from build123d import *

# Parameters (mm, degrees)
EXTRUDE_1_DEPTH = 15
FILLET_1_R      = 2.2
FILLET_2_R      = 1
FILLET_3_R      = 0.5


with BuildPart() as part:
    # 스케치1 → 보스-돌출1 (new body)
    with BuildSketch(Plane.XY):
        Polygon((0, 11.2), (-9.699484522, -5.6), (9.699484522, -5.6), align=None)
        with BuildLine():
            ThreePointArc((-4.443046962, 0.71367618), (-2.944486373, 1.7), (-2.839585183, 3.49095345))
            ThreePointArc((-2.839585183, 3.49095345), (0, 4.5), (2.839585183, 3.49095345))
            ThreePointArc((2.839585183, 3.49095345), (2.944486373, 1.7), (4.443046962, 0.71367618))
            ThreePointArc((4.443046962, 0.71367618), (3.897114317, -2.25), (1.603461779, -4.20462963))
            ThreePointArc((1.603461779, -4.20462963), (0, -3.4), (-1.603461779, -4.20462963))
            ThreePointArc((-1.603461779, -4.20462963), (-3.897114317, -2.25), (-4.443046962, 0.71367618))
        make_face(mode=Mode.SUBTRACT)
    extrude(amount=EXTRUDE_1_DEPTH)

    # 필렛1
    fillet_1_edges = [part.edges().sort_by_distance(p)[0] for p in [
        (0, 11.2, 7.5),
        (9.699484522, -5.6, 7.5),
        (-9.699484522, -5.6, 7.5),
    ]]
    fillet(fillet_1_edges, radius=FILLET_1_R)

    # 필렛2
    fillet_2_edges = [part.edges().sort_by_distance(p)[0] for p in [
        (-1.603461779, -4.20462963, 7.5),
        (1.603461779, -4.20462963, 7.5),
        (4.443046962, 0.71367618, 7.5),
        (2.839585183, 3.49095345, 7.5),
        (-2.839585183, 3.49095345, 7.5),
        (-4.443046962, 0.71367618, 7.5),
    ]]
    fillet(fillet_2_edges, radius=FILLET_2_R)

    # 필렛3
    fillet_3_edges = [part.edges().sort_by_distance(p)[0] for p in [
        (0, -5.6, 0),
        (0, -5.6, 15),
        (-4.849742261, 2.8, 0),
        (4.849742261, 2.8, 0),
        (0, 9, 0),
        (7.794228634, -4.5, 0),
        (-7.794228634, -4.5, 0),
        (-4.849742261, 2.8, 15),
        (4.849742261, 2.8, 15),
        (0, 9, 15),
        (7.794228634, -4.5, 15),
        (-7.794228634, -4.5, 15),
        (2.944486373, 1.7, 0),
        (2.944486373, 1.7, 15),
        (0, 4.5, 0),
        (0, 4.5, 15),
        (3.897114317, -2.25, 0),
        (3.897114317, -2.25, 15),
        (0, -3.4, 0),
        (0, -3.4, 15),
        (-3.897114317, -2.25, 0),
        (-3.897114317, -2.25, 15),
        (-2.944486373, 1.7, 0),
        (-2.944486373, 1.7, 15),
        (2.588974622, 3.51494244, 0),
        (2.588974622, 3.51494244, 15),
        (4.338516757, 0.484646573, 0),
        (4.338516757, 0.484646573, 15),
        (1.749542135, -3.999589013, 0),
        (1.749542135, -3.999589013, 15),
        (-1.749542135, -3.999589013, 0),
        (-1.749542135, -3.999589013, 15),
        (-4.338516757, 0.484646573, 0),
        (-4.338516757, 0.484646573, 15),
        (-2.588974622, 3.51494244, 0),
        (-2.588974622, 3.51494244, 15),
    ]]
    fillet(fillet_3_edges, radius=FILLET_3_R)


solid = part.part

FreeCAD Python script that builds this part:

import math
import FreeCAD as App
import Part
import Sketcher

V = App.Vector
Q = App.Units.Quantity


def edges_at(feature, points):
    """Names of the edges that pass closest to the given points."""
    edges = feature.Shape.Edges
    near = lambda p: min(range(len(edges)), key=lambda i: edges[i].distToShape(Part.Vertex(*p))[0])
    return sorted({f"Edge{near(p) + 1}" for p in points})


def add_polygon(sketch, points):
    """Adds a closed chain of lines whose ends are joined by coincident constraints."""
    first, n = sketch.GeometryCount, len(points)
    for a, b in zip(points, points[1:] + points[:1]):
        sketch.addGeometry(Part.LineSegment(App.Vector(*a, 0), App.Vector(*b, 0)), False)
    for i in range(n):
        sketch.addConstraint(Sketcher.Constraint("Coincident", first + i, 2, first + (i + 1) % n, 1))

doc = App.newDocument("Part")
body = doc.addObject("PartDesign::Body", "Body")

# Sketch on XY plane
sketch1 = doc.addObject("Sketcher::SketchObject", "Sketch")
body.addObject(sketch1)
sketch1.AttachmentSupport = (doc.XY_Plane, [""])
sketch1.MapMode = "FlatFace"
add_polygon(sketch1, [(0, 11.2), (-9.699485, -5.6), (9.699485, -5.6)])  # lines 0-2
sketch1.addGeometry(Part.ArcOfCircle(Part.Circle(V(0, 0, 0), V(0, 0, 1), 4.5), math.radians(170.874663), math.radians(249.125337)), False)  # 3
sketch1.addGeometry(Part.ArcOfCircle(Part.Circle(V(-4.676537, 2.7, 0), V(0, 0, 1), 2), math.radians(-83.295709), math.radians(23.295709)), False)  # 4
sketch1.addGeometry(Part.ArcOfCircle(Part.Circle(V(0, 0, 0), V(0, 0, 1), 4.5), math.radians(50.874663), math.radians(129.125337)), False)  # 5
sketch1.addGeometry(Part.ArcOfCircle(Part.Circle(V(4.676537, 2.7, 0), V(0, 0, 1), 2), math.radians(156.704291), math.radians(263.295709)), False)  # 6
sketch1.addGeometry(Part.ArcOfCircle(Part.Circle(V(0, 0, 0), V(0, 0, 1), 4.5), math.radians(-69.125337), math.radians(9.125337)), False)  # 7
sketch1.addGeometry(Part.ArcOfCircle(Part.Circle(V(0, -5.4, 0), V(0, 0, 1), 2), math.radians(36.70429), math.radians(143.29571)), False)  # 8
sketch1.addConstraint(Sketcher.Constraint("Coincident", 3, 1, 4, 1))
sketch1.addConstraint(Sketcher.Constraint("Coincident", 4, 2, 5, 2))
sketch1.addConstraint(Sketcher.Constraint("Coincident", 5, 1, 6, 1))
sketch1.addConstraint(Sketcher.Constraint("Coincident", 6, 2, 7, 2))
sketch1.addConstraint(Sketcher.Constraint("Coincident", 7, 1, 8, 1))
sketch1.addConstraint(Sketcher.Constraint("Coincident", 8, 2, 3, 2))
sketch1.addConstraint(Sketcher.Constraint("Horizontal", 1))
sketch1.addConstraint(Sketcher.Constraint("Coincident", 3, 3, -1, 1))
sketch1.addConstraint(Sketcher.Constraint("Coincident", 5, 3, -1, 1))
sketch1.addConstraint(Sketcher.Constraint("Coincident", 7, 3, -1, 1))
sketch1.addConstraint(Sketcher.Constraint("Equal", 3, 5))
sketch1.addConstraint(Sketcher.Constraint("Equal", 4, 6))
sketch1.addConstraint(Sketcher.Constraint("Equal", 5, 7))
sketch1.addConstraint(Sketcher.Constraint("Equal", 6, 8))
sketch1.addConstraint(Sketcher.Constraint("Symmetric", 4, 3, 6, 3, -2))
sketch1.addConstraint(Sketcher.Constraint("PointOnObject", 8, 3, -2))
sketch1.addConstraint(Sketcher.Constraint("PointOnObject", 2, 2, -2))
sketch1.addConstraint(Sketcher.Constraint("Equal", 0, 2))
sketch1.addConstraint(Sketcher.Constraint("Radius", 4, Q("2 mm")))
sketch1.addConstraint(Sketcher.Constraint("Radius", 3, Q("4.5 mm")))
sketch1.addConstraint(Sketcher.Constraint("Angle", 0, Q("-120 deg")))
sketch1.addConstraint(Sketcher.Constraint("DistanceY", -1, 1, 4, 3, Q("2.7 mm")))
sketch1.addConstraint(Sketcher.Constraint("DistanceY", 8, 3, -1, 1, Q("5.4 mm")))
sketch1.addConstraint(Sketcher.Constraint("DistanceY", 0, 2, -1, 1, Q("5.6 mm")))
sketch1.addConstraint(Sketcher.Constraint("DistanceY", -1, 1, 2, 2, Q("11.2 mm")))
sketch1.addConstraint(Sketcher.Constraint("DistanceX", 4, 3, 3, 1, Q("0.23349 mm")))
pad1 = doc.addObject("PartDesign::Pad", "Pad")
body.addObject(pad1)
pad1.Profile = sketch1
pad1.Length = 15
doc.recompute()

fillet = doc.addObject("PartDesign::Fillet", "Fillet")
body.addObject(fillet)
fillet.Base = (pad1, edges_at(pad1, [(0, 11.2, 7.5), (9.699, -5.6, 7.5), (-9.699, -5.6, 7.5)]))
fillet.Radius = 2.2
doc.recompute()

fillet2 = doc.addObject("PartDesign::Fillet", "Fillet001")
body.addObject(fillet2)
fillet2.Base = (fillet, edges_at(fillet, [
    (-1.603, -4.205, 7.5),
    (1.603, -4.205, 7.5),
    (4.443, 0.714, 7.5),
    (2.84, 3.491, 7.5),
    (-2.84, 3.491, 7.5),
    (-4.443, 0.714, 7.5),
]))
fillet2.Radius = 1
doc.recompute()

fillet3 = doc.addObject("PartDesign::Fillet", "Fillet002")
body.addObject(fillet3)
fillet3.Base = (fillet2, edges_at(fillet2, [
    (0, -5.6, 0),
    (0, -5.6, 15),
    (-4.85, 2.8, 0),
    (4.85, 2.8, 0),
    (0, 9, 0),
    (7.794, -4.5, 0),
    (-7.794, -4.5, 0),
    (-4.85, 2.8, 15),
    (4.85, 2.8, 15),
    (0, 9, 15),
    (7.794, -4.5, 15),
    (-7.794, -4.5, 15),
    (2.944, 1.7, 0),
    (2.944, 1.7, 15),
    (0, 4.5, 0),
    (0, 4.5, 15),
    (3.897, -2.25, 0),
    (3.897, -2.25, 15),
    (0, -3.4, 0),
    (0, -3.4, 15),
    (-3.897, -2.25, 0),
    (-3.897, -2.25, 15),
    (-2.944, 1.7, 0),
    (-2.944, 1.7, 15),
    (2.589, 3.515, 0),
    (2.589, 3.515, 15),
    (4.339, 0.485, 0),
    (4.339, 0.485, 15),
    (1.75, -4, 0),
    (1.75, -4, 15),
    (-1.75, -4, 0),
    (-1.75, -4, 15),
    (-4.339, 0.485, 0),
    (-4.339, 0.485, 15),
    (-2.589, 3.515, 0),
    (-2.589, 3.515, 15),
]))
fillet3.Radius = 0.5

doc.recompute()
